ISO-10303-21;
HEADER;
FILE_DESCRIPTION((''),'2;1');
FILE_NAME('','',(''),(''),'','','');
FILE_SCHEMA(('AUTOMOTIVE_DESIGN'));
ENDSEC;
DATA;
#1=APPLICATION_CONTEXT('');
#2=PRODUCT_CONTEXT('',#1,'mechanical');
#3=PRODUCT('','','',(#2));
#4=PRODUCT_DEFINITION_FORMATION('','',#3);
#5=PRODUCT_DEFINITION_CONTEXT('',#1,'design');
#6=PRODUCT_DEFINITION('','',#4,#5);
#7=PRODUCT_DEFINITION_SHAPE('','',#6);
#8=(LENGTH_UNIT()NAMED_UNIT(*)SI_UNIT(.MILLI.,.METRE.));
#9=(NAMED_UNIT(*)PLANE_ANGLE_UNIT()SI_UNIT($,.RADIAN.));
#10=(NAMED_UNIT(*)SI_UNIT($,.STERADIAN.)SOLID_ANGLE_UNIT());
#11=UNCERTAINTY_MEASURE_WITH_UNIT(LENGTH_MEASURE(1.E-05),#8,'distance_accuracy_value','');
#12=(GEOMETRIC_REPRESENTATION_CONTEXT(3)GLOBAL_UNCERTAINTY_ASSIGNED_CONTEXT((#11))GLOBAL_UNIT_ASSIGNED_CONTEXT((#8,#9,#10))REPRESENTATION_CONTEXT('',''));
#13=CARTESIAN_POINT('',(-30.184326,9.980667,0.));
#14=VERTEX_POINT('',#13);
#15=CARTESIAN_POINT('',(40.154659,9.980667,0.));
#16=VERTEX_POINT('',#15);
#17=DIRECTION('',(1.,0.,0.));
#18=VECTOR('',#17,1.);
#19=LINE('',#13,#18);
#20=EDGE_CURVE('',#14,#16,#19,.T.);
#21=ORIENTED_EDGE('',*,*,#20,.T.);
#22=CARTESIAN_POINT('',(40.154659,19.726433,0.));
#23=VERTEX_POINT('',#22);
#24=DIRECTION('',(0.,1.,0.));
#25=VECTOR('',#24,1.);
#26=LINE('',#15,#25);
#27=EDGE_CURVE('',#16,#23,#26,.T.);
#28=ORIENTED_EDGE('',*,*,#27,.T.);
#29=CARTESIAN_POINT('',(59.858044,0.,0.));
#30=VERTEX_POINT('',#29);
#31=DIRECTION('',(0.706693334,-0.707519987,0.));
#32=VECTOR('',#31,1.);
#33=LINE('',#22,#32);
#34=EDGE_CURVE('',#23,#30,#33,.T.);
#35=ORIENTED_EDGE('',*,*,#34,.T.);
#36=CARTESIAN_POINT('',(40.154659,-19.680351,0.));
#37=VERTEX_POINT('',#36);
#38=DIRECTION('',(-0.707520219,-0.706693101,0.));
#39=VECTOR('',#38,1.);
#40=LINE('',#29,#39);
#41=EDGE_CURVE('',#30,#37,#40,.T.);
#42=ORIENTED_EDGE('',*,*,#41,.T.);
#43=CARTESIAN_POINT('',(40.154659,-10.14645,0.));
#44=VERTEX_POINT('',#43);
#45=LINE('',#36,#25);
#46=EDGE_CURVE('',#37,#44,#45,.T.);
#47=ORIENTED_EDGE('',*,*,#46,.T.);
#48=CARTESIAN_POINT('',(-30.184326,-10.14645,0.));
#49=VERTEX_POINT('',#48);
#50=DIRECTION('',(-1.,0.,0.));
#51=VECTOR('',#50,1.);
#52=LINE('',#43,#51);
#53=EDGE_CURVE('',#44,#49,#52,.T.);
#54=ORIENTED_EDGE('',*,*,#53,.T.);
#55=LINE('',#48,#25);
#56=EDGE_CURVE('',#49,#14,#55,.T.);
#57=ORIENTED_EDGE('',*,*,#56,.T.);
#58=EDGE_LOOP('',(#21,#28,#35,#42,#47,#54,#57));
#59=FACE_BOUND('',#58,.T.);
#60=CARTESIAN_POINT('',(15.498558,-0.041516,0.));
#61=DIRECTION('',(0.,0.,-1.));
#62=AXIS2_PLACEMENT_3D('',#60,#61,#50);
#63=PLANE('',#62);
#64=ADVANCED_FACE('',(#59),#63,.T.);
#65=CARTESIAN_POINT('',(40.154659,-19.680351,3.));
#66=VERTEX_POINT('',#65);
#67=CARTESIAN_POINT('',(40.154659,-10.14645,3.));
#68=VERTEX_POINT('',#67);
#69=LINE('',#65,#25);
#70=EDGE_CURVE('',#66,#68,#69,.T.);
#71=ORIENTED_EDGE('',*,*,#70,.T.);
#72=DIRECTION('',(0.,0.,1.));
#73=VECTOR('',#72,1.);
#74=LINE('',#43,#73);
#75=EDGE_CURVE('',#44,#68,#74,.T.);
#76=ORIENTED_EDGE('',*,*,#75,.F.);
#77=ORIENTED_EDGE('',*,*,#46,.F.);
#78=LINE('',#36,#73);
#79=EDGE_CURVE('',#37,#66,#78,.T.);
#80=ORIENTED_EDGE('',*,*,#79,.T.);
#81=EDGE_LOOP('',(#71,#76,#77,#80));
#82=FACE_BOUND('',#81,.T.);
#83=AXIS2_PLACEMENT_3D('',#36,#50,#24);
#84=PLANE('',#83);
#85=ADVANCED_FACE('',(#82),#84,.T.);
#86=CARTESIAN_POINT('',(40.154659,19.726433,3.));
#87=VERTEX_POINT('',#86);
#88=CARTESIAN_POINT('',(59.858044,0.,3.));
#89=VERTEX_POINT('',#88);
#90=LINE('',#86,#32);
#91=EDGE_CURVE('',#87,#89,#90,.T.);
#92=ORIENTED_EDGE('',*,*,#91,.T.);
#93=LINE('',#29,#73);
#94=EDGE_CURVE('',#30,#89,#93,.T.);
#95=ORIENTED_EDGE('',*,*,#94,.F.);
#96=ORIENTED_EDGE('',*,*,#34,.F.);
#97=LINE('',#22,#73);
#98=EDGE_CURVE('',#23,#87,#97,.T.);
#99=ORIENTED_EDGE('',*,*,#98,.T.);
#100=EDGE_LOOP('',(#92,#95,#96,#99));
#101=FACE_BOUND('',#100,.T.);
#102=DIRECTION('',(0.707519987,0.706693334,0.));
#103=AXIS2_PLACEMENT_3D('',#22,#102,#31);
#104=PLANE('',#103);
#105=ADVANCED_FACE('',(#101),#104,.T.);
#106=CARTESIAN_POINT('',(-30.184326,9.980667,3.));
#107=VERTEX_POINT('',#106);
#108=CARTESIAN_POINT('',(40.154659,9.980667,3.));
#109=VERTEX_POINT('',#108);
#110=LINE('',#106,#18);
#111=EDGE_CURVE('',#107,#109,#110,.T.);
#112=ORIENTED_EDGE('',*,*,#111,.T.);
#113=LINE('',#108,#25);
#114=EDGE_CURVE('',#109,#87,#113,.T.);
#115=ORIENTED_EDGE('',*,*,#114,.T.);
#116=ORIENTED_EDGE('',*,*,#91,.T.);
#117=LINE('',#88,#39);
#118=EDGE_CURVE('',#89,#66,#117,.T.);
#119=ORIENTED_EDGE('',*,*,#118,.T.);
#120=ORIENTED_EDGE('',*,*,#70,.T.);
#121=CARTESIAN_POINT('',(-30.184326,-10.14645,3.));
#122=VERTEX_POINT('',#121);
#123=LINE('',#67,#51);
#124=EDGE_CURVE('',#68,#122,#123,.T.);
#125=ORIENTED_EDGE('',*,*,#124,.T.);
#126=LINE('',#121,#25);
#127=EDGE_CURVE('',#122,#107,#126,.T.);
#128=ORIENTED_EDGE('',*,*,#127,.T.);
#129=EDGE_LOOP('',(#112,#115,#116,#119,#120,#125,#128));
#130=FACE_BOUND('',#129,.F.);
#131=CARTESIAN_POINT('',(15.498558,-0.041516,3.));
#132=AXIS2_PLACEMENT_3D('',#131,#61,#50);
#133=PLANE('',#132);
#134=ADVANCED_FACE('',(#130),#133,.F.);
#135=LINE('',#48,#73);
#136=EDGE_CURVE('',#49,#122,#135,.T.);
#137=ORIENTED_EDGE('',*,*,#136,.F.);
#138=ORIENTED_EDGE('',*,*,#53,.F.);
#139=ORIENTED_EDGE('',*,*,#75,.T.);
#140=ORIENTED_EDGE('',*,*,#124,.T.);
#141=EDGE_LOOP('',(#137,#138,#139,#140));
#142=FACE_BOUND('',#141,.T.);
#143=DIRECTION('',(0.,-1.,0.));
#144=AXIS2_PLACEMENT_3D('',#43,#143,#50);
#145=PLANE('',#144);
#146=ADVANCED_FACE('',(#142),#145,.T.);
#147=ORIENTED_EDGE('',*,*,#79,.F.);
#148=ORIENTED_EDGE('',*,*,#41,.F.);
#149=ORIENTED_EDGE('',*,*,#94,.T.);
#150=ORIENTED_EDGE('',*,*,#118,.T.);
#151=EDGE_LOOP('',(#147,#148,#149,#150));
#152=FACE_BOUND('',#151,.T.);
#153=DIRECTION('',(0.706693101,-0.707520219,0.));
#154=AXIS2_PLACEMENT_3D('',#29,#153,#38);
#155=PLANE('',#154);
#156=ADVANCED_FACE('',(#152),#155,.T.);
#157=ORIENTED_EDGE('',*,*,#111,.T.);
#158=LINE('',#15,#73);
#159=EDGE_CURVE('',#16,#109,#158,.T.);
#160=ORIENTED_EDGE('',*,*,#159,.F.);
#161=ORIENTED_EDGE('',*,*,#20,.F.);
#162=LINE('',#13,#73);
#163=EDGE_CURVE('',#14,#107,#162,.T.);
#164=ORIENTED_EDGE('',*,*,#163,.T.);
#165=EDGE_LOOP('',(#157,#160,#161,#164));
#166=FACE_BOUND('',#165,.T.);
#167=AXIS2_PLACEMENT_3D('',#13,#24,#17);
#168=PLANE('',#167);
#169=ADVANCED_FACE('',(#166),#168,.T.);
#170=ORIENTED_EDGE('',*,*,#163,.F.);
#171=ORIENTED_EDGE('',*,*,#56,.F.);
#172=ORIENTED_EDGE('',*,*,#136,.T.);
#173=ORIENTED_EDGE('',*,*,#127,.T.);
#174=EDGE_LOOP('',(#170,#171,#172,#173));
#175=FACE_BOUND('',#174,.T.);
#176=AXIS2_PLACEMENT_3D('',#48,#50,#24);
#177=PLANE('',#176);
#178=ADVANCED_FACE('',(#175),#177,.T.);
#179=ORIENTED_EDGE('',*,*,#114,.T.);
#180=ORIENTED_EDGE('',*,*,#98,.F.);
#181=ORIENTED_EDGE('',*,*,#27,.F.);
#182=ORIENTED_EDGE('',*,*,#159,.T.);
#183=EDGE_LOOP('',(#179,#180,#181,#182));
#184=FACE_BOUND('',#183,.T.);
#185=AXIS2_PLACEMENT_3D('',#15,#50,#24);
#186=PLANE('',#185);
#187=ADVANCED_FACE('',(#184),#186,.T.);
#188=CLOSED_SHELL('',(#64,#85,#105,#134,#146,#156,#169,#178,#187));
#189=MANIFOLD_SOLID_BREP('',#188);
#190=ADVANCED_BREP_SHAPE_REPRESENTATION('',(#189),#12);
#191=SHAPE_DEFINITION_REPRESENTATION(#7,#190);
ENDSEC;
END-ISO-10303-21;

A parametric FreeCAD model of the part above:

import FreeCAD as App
import Part
import Sketcher

doc = App.newDocument("Part")
body = doc.addObject("PartDesign::Body", "Body")

sketch1 = doc.addObject("Sketcher::SketchObject", "Sketch")
body.addObject(sketch1)
sketch1.AttachmentSupport = (doc.XY_Plane, [""])
sketch1.MapMode = "FlatFace"
sketch1.addGeometry(Part.LineSegment(App.Vector(-30, 10, 0), App.Vector(-30, -10, 0)), False)
sketch1.addGeometry(Part.LineSegment(App.Vector(-30, -10, 0), App.Vector(40, -10, 0)), False)
sketch1.addGeometry(Part.LineSegment(App.Vector(40, -10, 0), App.Vector(40, -20, 0)), False)
sketch1.addGeometry(Part.LineSegment(App.Vector(40, -20, 0), App.Vector(60, 0, 0)), False)
sketch1.addGeometry(Part.LineSegment(App.Vector(60, 0, 0), App.Vector(40, 20, 0)), False)
sketch1.addGeometry(Part.LineSegment(App.Vector(40, 20, 0), App.Vector(40, 10, 0)), False)
sketch1.addGeometry(Part.LineSegment(App.Vector(40, 10, 0), App.Vector(-30, 10, 0)), False)
sketch1.addConstraint(Sketcher.Constraint("Coincident", 0, 2, 1, 1))
sketch1.addConstraint(Sketcher.Constraint("Coincident", 1, 2, 2, 1))
sketch1.addConstraint(Sketcher.Constraint("Coincident", 2, 2, 3, 1))
sketch1.addConstraint(Sketcher.Constraint("Coincident", 3, 2, 4, 1))
sketch1.addConstraint(Sketcher.Constraint("Coincident", 4, 2, 5, 1))
sketch1.addConstraint(Sketcher.Constraint("Coincident", 5, 2, 6, 1))
sketch1.addConstraint(Sketcher.Constraint("Coincident", 6, 2, 0, 1))
sketch1.addConstraint(Sketcher.Constraint("Vertical", 0))
sketch1.addConstraint(Sketcher.Constraint("Horizontal", 1))
sketch1.addConstraint(Sketcher.Constraint("Vertical", 2))
sketch1.addConstraint(Sketcher.Constraint("Vertical", 5))
sketch1.addConstraint(Sketcher.Constraint("Horizontal", 6))
sketch1.addConstraint(Sketcher.Constraint("PointOnObject", 3, 2, -1))
sketch1.addConstraint(Sketcher.Constraint("Perpendicular", 3, 4))
sketch1.addConstraint(Sketcher.Constraint("Vertical", 2, 2, 4, 2))
sketch1.addConstraint(Sketcher.Constraint("DistanceY", 2, 2, 2, 1, 9.533901))
sketch1.addConstraint(Sketcher.Constraint("Distance", 3, 27.848512))
sketch1.addConstraint(Sketcher.Constraint("DistanceX", 1, 1, 1, 2, 70.338985))
sketch1.addConstraint(Sketcher.Constraint("DistanceY", 0, 2, 0, 1, 20.127117))
sketch1.addConstraint(Sketcher.Constraint("DistanceY", 5, 2, 5, 1, 9.745766))
sketch1.addConstraint(Sketcher.Constraint("DistanceX", -1, 1, 1, 2, 40.154659))
pad1 = doc.addObject("PartDesign::Pad", "Pad")
body.addObject(pad1)
pad1.Profile = sketch1
pad1.Length = 3

doc.recompute()
